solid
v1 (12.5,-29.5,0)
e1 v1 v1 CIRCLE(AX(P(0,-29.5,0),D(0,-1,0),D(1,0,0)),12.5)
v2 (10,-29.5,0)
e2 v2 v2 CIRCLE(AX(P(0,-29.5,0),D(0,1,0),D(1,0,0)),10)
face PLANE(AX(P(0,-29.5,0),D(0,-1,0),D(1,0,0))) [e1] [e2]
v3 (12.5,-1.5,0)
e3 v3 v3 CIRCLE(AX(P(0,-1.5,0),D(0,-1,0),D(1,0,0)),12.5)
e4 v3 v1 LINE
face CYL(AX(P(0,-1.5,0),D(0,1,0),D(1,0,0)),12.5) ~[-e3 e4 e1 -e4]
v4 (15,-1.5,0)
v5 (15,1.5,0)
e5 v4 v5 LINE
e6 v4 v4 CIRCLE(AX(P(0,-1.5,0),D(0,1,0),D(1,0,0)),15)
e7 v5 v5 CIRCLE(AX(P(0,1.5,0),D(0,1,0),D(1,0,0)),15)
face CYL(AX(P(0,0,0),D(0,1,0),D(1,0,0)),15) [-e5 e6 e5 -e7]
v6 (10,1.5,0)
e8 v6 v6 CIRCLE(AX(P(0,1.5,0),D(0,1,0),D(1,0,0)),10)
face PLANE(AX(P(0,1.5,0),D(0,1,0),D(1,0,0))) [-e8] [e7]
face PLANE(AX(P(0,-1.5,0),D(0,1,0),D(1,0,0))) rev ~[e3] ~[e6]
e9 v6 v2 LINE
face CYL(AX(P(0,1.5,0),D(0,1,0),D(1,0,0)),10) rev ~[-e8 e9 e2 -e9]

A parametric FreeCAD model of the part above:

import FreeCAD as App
import Part
import Sketcher
from FreeCAD import Vector
Q = App.Units.Quantity

doc = App.newDocument("Part")
body = doc.addObject("PartDesign::Body", "Body")

sketch1 = doc.addObject("Sketcher::SketchObject", "Sketch")
body.addObject(sketch1)
sketch1.AttachmentSupport = (doc.XZ_Plane, [""])
sketch1.MapMode = "FlatFace"
sketch1.addGeometry(Part.Circle(Vector(0, 0, 0), Vector(0, 0, 1), 15), False)
sketch1.addConstraint([
    Sketcher.Constraint("Coincident", 0, 3, -1, 1),
    Sketcher.Constraint("Diameter", 0, Q("30 mm")),
])
pad1 = doc.addObject("PartDesign::Pad", "Pad")
body.addObject(pad1)
pad1.Profile = sketch1
pad1.Length = 3
pad1.Midplane = True

sketch2 = doc.addObject("Sketcher::SketchObject", "Sketch001")
body.addObject(sketch2)
sketch2.AttachmentSupport = (doc.XZ_Plane, [""])
sketch2.MapMode = "FlatFace"
sketch2.AttachmentOffset = App.Placement(Vector(0, 0, 1.5), App.Rotation())
sketch2.addGeometry(Part.Circle(Vector(0, 0, 0), Vector(0, 0, 1), 12.5), False)
sketch2.addConstraint([
    Sketcher.Constraint("Coincident", 0, 3, -1, 1),
    Sketcher.Constraint("Diameter", 0, Q("25 mm")),
])
pad2 = doc.addObject("PartDesign::Pad", "Pad001")
body.addObject(pad2)
pad2.Profile = sketch2
pad2.Length = 28

sketch3 = doc.addObject("Sketcher::SketchObject", "Sketch002")
body.addObject(sketch3)
sketch3.AttachmentSupport = (doc.XZ_Plane, [""])
sketch3.MapMode = "FlatFace"
sketch3.AttachmentOffset = App.Placement(Vector(0, 0, -1.5), App.Rotation())
sketch3.addGeometry(Part.Circle(Vector(0, 0, 0), Vector(0, 0, 1), 10), False)
sketch3.addConstraint([
    Sketcher.Constraint("Coincident", 0, 3, -1, 1),
    Sketcher.Constraint("Diameter", 0, Q("20 mm")),
])
pocket1 = doc.addObject("PartDesign::Pocket", "Pocket")
body.addObject(pocket1)
pocket1.Profile = sketch3
pocket1.Type = "ThroughAll"
pocket1.Reversed = True

doc.recompute()
